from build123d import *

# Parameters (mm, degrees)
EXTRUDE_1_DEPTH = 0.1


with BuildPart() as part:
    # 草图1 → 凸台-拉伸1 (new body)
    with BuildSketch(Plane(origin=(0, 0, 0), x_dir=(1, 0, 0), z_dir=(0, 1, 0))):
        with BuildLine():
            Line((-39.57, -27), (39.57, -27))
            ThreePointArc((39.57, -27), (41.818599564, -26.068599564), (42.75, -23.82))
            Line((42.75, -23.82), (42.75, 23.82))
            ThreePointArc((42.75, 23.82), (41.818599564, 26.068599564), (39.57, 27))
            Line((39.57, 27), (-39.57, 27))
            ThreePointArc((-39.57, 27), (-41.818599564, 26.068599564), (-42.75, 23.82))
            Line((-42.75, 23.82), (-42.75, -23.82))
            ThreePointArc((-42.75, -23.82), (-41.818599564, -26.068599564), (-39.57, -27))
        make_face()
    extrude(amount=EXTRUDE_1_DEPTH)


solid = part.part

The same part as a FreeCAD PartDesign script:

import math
import FreeCAD as App
import Part
import Sketcher
from FreeCAD import Vector
Q = App.Units.Quantity

doc = App.newDocument("Part")
body = doc.addObject("PartDesign::Body", "Body")

# Sketch on XZ plane
sketch1 = body.newObject("Sketcher::SketchObject", "Sketch")
sketch1.AttachmentSupport = (doc.getObject("XZ_Plane"), [""])
sketch1.MapMode = "FlatFace"
sketch1.addGeometry(Part.LineSegment(Vector(-39.6, 27, 0), Vector(39.6, 27, 0)), False)
sketch1.addGeometry(Part.ArcOfCircle(Part.Circle(Vector(39.6, 23.8, 0), Vector(0, 0, 1), 3.2), math.radians(0), math.radians(90)), False)
sketch1.addGeometry(Part.LineSegment(Vector(42.8, 23.8, 0), Vector(42.8, -23.8, 0)), False)
sketch1.addGeometry(Part.ArcOfCircle(Part.Circle(Vector(39.6, -23.8, 0), Vector(0, 0, 1), 3.2), math.radians(-90), math.radians(0)), False)
sketch1.addGeometry(Part.LineSegment(Vector(39.6, -27, 0), Vector(-39.6, -27, 0)), False)
sketch1.addGeometry(Part.ArcOfCircle(Part.Circle(Vector(-39.6, -23.8, 0), Vector(0, 0, 1), 3.2), math.radians(-180), math.radians(-90)), False)
sketch1.addGeometry(Part.LineSegment(Vector(-42.8, -23.8, 0), Vector(-42.8, 23.8, 0)), False)
sketch1.addGeometry(Part.ArcOfCircle(Part.Circle(Vector(-39.6, 23.8, 0), Vector(0, 0, 1), 3.2), math.radians(90), math.radians(180)), False)
sketch1.addConstraint(Sketcher.Constraint("Tangent", 0, 2, 1, 2))
sketch1.addConstraint(Sketcher.Constraint("Tangent", 1, 1, 2, 1))
sketch1.addConstraint(Sketcher.Constraint("Tangent", 2, 2, 3, 2))
sketch1.addConstraint(Sketcher.Constraint("Tangent", 3, 1, 4, 1))
sketch1.addConstraint(Sketcher.Constraint("Tangent", 4, 2, 5, 2))
sketch1.addConstraint(Sketcher.Constraint("Tangent", 5, 1, 6, 1))
sketch1.addConstraint(Sketcher.Constraint("Tangent", 6, 2, 7, 2))
sketch1.addConstraint(Sketcher.Constraint("Tangent", 7, 1, 0, 1))
sketch1.addConstraint(Sketcher.Constraint("Horizontal", 0))
sketch1.addConstraint(Sketcher.Constraint("Vertical", 2))
sketch1.addConstraint(Sketcher.Constraint("Horizontal", 4))
sketch1.addConstraint(Sketcher.Constraint("Vertical", 6))
sketch1.addConstraint(Sketcher.Constraint("Equal", 1, 3))
sketch1.addConstraint(Sketcher.Constraint("Equal", 3, 5))
sketch1.addConstraint(Sketcher.Constraint("Equal", 5, 7))
sketch1.addConstraint(Sketcher.Constraint("Symmetric", 1, 3, 5, 3, -1, 1))
sketch1.addConstraint(Sketcher.Constraint("Radius", 1, Q("3.18 mm")))
sketch1.addConstraint(Sketcher.Constraint("DistanceY", -1, 1, 0, 2, Q("27 mm")))
sketch1.addConstraint(Sketcher.Constraint("DistanceX", 0, 1, 0, 2, Q("79.14 mm")))
pad1 = body.newObject("PartDesign::Pad", "Pad")
pad1.Profile = sketch1
pad1.Length = 0.1
pad1.Reversed = True

doc.recompute()
